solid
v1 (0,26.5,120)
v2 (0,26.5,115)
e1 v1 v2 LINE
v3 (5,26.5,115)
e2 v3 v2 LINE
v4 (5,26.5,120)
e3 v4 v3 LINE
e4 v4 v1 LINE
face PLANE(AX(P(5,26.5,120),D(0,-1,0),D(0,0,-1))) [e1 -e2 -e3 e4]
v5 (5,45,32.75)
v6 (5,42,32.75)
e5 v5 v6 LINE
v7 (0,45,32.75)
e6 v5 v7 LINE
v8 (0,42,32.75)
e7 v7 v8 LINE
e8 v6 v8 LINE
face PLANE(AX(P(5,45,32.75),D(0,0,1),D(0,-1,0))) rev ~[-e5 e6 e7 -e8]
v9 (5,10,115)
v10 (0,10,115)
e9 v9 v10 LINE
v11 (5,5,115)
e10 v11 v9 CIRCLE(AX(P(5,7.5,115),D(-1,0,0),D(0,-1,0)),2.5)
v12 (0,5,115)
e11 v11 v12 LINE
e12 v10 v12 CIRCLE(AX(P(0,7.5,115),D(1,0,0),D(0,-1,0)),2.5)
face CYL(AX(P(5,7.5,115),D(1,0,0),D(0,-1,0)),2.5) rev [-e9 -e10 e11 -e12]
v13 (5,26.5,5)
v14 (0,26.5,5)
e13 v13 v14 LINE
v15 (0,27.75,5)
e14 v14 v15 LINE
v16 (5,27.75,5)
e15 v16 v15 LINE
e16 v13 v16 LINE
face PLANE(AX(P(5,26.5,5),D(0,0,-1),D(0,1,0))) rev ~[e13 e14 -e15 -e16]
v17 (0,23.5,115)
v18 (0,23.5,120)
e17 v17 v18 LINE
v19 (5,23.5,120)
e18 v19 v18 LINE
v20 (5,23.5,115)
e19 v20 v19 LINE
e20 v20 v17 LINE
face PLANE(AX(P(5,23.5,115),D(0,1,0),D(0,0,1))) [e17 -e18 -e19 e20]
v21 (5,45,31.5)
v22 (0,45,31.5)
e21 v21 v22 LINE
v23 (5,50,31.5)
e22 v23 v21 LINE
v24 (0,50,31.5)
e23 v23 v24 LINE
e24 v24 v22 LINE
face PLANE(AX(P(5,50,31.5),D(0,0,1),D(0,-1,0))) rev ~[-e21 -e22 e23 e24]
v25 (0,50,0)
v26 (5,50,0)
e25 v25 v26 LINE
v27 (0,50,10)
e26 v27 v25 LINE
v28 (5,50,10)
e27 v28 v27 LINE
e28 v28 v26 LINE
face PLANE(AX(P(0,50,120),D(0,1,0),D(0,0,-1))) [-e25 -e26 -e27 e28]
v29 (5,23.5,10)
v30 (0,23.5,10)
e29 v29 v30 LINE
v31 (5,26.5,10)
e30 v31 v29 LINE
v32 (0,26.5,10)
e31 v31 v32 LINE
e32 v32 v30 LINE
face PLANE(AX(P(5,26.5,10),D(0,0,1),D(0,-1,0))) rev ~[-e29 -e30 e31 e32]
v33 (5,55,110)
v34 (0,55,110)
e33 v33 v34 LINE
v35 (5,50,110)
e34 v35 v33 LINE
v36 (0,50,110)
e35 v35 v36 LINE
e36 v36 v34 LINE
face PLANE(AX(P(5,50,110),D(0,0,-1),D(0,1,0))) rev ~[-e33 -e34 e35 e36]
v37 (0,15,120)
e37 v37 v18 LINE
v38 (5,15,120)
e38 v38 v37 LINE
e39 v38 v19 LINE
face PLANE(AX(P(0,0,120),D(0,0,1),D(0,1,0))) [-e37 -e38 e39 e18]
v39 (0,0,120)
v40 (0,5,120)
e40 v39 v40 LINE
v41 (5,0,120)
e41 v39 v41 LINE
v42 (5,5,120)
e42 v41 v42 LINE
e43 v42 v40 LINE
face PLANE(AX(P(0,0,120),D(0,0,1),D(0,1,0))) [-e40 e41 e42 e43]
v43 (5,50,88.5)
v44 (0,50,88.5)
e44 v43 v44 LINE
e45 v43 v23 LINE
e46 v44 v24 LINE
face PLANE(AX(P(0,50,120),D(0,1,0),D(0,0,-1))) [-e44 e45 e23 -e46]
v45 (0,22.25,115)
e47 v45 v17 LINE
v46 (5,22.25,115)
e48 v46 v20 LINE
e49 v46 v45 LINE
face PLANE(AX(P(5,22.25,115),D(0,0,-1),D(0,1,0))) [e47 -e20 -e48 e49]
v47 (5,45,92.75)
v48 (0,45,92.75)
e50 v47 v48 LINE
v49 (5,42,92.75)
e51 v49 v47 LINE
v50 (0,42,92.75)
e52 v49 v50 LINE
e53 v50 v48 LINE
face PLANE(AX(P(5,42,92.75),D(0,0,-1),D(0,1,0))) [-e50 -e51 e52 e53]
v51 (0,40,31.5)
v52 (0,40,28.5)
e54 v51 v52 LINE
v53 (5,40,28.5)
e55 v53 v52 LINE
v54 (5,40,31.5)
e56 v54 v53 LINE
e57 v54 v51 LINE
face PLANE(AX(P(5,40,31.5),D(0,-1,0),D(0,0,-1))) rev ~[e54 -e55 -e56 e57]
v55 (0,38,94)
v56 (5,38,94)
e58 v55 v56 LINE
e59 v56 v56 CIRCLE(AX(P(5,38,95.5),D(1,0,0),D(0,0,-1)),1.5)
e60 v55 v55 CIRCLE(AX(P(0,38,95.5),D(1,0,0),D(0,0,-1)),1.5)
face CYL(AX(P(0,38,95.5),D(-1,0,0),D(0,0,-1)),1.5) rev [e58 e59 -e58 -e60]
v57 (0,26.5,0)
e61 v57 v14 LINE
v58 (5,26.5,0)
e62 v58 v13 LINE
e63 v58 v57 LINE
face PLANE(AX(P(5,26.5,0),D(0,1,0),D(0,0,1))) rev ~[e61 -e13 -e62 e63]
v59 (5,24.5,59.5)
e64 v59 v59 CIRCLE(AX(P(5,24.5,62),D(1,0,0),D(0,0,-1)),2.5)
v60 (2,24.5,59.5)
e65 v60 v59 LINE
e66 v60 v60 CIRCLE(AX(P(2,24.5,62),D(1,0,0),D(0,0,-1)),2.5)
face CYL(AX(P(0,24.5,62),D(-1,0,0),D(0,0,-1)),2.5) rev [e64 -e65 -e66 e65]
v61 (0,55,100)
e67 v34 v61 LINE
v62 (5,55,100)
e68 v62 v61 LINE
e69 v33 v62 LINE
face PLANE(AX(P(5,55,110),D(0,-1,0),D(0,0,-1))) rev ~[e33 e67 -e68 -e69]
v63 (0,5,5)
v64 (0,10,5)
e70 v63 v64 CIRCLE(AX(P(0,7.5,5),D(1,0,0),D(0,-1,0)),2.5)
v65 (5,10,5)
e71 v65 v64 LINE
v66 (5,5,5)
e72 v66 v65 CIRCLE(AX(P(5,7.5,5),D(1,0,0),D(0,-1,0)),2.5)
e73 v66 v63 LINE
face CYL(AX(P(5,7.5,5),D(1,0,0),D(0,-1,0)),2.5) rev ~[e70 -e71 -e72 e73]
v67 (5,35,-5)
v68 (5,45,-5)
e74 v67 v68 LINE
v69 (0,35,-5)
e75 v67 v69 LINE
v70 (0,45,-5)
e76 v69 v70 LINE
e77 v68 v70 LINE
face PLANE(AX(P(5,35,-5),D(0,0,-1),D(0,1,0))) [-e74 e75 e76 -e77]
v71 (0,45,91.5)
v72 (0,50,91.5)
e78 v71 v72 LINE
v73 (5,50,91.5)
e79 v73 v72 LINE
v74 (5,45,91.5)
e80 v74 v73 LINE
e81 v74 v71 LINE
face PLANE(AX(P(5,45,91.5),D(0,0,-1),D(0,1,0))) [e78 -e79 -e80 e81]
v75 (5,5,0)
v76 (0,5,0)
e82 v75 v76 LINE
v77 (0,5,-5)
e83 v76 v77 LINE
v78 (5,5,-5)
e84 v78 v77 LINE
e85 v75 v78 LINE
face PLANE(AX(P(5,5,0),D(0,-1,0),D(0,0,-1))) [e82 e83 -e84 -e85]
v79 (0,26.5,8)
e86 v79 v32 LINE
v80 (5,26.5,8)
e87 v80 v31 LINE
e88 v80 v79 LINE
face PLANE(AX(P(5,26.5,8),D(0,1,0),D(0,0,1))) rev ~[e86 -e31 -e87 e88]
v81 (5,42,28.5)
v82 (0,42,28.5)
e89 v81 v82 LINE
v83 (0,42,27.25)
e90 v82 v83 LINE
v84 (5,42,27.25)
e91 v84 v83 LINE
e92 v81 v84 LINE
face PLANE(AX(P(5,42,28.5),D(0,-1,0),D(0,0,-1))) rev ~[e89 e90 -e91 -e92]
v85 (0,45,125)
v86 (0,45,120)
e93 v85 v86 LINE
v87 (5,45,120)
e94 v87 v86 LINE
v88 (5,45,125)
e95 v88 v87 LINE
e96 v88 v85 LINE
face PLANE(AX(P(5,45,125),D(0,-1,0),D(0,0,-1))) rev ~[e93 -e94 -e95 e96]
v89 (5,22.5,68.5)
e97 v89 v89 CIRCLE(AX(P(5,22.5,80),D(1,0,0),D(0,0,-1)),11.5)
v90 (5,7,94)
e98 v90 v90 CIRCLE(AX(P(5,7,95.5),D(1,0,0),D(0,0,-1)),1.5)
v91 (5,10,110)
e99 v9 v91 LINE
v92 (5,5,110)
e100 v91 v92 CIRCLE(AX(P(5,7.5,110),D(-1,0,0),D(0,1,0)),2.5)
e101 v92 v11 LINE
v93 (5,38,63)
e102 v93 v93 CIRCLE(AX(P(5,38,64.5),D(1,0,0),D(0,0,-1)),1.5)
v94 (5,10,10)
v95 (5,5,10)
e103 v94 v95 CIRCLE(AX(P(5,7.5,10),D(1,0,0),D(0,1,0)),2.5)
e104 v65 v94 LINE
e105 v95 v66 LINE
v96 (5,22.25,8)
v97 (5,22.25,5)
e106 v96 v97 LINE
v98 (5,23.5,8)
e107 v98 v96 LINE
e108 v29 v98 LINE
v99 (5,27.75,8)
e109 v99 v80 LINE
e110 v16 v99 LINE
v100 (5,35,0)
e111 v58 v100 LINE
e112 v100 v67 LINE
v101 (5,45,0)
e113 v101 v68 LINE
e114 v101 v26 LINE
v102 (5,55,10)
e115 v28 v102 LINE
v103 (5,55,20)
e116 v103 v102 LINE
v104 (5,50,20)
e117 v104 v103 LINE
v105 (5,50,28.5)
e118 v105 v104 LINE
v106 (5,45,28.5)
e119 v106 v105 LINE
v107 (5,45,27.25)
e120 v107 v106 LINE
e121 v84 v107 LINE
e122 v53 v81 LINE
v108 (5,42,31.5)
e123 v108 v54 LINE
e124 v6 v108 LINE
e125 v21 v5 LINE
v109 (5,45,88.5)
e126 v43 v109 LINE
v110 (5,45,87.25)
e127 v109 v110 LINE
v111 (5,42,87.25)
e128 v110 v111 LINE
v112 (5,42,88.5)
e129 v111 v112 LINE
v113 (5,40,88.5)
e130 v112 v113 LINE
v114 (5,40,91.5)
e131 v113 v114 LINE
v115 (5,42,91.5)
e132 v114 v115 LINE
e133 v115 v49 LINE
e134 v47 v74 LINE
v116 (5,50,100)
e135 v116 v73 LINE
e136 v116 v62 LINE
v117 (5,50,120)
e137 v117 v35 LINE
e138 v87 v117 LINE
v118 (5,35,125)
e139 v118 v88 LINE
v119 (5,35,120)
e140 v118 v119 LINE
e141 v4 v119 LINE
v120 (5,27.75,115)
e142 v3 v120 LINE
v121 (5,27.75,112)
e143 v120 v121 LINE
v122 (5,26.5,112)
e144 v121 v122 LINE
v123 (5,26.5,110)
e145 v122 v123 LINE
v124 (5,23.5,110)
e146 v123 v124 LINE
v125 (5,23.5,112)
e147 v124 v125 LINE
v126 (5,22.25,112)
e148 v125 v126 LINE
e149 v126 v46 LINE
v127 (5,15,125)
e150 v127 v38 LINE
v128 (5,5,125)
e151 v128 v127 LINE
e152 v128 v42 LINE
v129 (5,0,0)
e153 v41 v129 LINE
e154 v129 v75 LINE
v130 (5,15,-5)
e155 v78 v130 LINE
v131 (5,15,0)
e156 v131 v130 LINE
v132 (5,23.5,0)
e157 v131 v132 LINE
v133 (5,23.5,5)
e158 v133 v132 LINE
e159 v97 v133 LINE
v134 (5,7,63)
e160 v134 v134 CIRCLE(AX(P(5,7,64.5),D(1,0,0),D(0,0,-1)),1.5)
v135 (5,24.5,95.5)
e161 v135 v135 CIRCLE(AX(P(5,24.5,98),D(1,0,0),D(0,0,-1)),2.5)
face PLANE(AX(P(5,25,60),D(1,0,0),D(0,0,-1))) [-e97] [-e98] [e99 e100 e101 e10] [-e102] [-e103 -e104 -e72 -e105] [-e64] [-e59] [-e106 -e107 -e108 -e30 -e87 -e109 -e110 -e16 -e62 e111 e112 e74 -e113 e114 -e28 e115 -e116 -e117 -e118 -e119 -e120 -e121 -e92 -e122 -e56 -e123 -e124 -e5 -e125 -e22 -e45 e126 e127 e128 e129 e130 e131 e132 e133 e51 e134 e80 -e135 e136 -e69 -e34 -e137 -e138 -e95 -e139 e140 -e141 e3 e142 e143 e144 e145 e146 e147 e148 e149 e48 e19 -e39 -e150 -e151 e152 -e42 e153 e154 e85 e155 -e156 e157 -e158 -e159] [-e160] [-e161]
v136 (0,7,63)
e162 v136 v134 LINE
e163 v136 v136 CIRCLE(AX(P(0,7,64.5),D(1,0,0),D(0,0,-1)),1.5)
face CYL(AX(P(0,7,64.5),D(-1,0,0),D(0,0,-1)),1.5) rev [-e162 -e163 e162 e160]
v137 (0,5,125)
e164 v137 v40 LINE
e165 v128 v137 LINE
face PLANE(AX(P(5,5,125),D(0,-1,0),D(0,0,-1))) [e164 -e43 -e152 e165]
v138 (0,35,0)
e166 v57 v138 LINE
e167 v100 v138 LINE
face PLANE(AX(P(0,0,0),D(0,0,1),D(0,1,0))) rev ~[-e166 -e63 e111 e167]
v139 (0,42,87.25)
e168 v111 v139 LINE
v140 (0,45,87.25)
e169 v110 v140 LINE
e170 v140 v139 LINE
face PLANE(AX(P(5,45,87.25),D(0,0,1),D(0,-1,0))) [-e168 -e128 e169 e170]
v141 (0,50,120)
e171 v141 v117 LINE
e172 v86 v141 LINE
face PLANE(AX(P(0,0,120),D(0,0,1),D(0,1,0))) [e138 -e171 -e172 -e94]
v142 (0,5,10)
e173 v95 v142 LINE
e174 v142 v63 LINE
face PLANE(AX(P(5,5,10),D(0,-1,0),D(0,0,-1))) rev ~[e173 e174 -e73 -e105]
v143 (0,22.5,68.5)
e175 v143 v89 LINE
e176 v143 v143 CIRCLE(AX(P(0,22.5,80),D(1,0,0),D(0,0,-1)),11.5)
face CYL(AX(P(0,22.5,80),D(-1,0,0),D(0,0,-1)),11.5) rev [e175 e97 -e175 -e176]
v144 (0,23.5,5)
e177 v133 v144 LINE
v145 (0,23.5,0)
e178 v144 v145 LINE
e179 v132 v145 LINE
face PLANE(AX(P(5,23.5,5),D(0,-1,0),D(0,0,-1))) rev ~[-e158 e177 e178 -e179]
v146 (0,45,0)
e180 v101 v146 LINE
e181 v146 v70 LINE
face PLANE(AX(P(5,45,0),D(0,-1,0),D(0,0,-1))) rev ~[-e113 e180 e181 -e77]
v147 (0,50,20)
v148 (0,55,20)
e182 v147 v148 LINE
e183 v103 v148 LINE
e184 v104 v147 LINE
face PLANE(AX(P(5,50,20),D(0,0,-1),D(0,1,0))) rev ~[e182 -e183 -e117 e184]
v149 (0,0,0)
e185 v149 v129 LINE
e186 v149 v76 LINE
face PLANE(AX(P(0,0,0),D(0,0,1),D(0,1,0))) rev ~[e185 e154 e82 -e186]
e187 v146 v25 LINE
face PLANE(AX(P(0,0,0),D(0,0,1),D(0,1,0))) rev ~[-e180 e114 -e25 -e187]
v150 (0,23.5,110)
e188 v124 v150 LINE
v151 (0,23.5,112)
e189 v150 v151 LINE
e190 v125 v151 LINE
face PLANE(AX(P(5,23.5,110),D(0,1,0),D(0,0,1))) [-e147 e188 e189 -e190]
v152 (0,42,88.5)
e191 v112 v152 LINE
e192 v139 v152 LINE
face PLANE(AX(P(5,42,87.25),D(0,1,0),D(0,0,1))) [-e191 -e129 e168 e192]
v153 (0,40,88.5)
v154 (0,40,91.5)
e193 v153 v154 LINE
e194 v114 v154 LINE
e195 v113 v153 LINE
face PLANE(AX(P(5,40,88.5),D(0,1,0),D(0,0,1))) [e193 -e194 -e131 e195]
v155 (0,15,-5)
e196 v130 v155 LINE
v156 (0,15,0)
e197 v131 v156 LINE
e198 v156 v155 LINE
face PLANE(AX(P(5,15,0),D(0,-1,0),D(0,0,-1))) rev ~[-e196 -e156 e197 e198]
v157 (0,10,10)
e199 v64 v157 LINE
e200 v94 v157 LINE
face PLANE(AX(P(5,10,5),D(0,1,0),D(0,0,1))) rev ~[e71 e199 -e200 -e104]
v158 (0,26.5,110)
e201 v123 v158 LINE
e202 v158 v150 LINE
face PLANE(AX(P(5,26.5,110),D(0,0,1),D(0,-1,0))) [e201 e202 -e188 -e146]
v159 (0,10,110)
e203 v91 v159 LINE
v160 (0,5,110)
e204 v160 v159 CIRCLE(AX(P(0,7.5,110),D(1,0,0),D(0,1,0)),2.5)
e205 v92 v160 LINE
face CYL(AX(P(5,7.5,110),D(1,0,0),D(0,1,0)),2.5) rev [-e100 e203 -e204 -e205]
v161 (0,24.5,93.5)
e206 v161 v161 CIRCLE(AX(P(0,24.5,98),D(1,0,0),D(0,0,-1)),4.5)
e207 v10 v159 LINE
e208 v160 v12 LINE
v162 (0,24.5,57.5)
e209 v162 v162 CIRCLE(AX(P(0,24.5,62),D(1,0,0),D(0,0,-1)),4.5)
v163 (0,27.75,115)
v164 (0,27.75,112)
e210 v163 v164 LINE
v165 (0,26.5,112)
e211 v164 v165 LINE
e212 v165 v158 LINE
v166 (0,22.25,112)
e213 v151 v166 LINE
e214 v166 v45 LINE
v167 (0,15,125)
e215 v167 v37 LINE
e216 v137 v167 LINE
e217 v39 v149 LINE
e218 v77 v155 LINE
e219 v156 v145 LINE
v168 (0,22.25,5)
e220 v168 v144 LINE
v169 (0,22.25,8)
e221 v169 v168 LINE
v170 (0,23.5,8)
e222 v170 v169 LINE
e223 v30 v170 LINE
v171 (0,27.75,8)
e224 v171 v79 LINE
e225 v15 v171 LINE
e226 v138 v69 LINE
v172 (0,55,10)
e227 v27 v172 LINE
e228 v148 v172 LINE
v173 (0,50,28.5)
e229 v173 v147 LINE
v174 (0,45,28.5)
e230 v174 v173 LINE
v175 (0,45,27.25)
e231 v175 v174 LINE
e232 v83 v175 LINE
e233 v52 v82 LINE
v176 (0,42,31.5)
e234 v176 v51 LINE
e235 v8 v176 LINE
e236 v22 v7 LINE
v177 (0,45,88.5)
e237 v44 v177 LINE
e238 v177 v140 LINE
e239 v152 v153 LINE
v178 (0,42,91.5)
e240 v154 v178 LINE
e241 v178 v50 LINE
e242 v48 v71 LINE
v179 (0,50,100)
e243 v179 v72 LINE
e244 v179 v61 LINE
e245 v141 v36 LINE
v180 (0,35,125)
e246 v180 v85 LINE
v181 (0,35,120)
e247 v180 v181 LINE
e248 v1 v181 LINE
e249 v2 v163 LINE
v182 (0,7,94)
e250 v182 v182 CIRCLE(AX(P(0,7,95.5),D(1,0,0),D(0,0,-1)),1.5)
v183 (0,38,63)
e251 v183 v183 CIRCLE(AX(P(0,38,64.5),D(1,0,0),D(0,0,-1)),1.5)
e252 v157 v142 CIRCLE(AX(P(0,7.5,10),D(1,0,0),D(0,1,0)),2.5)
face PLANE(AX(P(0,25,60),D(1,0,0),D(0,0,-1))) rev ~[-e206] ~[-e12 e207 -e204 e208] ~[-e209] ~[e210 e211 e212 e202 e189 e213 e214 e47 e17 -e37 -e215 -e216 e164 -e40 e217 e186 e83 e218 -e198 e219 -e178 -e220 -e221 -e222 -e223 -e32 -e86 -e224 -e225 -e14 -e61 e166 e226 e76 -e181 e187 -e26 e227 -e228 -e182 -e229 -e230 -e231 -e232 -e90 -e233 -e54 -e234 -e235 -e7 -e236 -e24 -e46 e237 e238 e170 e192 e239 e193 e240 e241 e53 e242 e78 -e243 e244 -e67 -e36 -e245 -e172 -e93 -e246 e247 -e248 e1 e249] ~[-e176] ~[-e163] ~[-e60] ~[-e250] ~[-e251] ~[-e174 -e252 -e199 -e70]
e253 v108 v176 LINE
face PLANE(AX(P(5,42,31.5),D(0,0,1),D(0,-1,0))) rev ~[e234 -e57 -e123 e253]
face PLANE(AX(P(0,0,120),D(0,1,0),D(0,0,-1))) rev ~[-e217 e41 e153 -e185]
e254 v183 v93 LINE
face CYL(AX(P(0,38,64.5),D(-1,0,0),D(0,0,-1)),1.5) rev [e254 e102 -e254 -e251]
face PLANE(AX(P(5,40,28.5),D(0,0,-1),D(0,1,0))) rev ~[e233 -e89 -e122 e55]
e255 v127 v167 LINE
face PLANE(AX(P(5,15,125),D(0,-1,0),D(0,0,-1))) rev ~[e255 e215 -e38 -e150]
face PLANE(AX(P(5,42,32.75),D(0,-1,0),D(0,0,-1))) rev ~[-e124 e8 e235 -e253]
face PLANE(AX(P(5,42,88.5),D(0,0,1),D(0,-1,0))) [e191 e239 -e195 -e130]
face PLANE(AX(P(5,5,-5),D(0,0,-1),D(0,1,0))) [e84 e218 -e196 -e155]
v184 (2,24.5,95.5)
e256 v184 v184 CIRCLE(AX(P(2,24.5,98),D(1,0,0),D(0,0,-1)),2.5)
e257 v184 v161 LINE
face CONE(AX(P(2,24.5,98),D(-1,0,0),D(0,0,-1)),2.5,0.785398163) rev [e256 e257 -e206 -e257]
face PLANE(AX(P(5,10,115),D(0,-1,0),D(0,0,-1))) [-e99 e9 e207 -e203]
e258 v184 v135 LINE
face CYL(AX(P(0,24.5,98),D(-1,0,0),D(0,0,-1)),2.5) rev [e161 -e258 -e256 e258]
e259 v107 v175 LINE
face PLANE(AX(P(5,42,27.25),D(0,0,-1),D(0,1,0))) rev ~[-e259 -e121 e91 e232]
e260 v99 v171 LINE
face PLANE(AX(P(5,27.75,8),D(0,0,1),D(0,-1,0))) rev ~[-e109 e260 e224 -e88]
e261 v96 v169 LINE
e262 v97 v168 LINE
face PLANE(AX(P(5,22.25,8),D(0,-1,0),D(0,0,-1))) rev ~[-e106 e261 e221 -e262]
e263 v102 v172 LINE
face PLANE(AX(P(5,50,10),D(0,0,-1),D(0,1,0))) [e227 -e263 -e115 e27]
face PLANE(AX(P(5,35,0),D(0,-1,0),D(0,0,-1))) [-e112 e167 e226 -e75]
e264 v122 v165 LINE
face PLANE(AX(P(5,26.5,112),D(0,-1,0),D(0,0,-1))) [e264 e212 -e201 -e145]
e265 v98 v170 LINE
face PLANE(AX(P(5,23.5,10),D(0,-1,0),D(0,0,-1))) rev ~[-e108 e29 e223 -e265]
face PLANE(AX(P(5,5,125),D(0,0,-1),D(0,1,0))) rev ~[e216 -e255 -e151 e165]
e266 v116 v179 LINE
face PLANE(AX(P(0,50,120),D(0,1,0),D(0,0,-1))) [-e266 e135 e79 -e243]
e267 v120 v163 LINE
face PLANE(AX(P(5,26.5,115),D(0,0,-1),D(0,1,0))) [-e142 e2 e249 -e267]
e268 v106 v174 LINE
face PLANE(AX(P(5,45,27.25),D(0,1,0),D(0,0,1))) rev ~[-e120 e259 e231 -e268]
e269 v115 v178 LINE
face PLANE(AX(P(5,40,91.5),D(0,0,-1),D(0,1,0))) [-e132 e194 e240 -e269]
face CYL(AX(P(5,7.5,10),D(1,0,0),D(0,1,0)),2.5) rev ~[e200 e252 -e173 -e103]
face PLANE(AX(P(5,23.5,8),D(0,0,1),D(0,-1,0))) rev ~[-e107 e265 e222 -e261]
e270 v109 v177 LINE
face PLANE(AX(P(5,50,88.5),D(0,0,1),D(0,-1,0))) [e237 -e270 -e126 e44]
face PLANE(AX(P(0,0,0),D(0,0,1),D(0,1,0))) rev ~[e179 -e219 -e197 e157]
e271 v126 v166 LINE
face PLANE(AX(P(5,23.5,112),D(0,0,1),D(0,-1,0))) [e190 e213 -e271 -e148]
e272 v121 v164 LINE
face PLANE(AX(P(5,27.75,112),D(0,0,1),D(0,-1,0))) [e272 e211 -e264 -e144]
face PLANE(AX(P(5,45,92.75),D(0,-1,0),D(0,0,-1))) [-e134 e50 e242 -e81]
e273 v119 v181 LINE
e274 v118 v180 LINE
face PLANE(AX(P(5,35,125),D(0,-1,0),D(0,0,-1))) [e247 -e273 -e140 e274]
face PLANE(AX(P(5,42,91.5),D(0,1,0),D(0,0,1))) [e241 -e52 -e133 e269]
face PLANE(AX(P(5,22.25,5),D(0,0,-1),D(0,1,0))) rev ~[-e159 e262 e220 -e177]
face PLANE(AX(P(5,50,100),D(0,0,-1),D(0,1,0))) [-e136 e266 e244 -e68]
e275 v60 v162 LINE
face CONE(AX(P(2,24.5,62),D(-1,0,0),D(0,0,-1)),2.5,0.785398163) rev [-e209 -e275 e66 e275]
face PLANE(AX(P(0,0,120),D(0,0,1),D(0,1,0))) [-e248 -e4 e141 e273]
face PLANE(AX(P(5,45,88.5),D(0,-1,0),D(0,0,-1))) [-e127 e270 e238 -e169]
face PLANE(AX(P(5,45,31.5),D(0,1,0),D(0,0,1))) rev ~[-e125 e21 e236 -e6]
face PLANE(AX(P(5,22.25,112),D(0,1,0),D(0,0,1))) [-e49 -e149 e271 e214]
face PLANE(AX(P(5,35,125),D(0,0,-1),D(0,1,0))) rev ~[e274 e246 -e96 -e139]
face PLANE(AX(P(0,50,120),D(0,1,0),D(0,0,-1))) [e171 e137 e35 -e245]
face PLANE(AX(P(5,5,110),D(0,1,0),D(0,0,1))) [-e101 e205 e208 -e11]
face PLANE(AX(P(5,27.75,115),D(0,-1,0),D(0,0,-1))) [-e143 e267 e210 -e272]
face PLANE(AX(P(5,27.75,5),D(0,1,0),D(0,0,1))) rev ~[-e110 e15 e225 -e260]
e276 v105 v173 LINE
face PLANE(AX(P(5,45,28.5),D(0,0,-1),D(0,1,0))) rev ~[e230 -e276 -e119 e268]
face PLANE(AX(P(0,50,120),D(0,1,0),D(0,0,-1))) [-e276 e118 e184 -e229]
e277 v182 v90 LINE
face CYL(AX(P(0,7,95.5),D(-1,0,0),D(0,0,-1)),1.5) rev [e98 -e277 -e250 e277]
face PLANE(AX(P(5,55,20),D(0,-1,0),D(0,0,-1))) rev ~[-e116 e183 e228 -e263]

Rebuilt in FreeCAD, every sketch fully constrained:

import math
import FreeCAD as App
import Part
import Sketcher
from FreeCAD import Vector
Q = App.Units.Quantity


def edges_at(feature, points):
    """Names of the edges that pass closest to the given points."""
    edges = feature.Shape.Edges
    near = lambda p: min(range(len(edges)), key=lambda i: edges[i].distToShape(Part.Vertex(*p))[0])
    return sorted({f"Edge{near(p) + 1}" for p in points})

doc = App.newDocument("Part")
params = doc.addObject("Spreadsheet::Sheet", "Params")
for row, (alias, value) in enumerate([
    ("sketch1_diameter", "3 mm"),
    ("sketch1_diameter2", "5 mm"),
    ("sketch1_diameter3", "23 mm"),
    ("sketch1_width", "50 mm"),
    ("sketch1_height", "120 mm"),
    ("pad1_length", "5 mm"),
    ("chamfer_size", "2 mm"),
    ("sketch2_width", "10 mm"),
    ("sketch2_width2", "5 mm"),
    ("pad2_length", "5 mm"),
    ("sketch3_radius", "2.5 mm"),
    ("sketch3_width", "3 mm"),
    ("sketch3_width2", "5 mm"),
    ("sketch3_width3", "1.25 mm"),
], start=1):
    params.set(f"A{row}", alias)
    params.set(f"B{row}", "=" + value)
    params.setAlias(f"B{row}", alias)

body = doc.addObject("PartDesign::Body", "Body")

# Sketch on YZ plane
sketch1 = doc.addObject("Sketcher::SketchObject", "Sketch")
body.addObject(sketch1)
sketch1.AttachmentSupport = (doc.YZ_Plane, [""])
sketch1.MapMode = "FlatFace"
sketch1.addGeometry(Part.LineSegment(Vector(50, 120, 0), Vector(0, 120, 0)), False)
sketch1.addGeometry(Part.LineSegment(Vector(0, 120, 0), Vector(0, 0, 0)), False)
sketch1.addGeometry(Part.LineSegment(Vector(0, 0, 0), Vector(50, 0, 0)), False)
sketch1.addGeometry(Part.LineSegment(Vector(50, 0, 0), Vector(50, 120, 0)), False)
sketch1.addGeometry(Part.Circle(Vector(7, 95.5, 0), Vector(0, 0, 1), 1.5), False)
sketch1.addGeometry(Part.Circle(Vector(7, 64.5, 0), Vector(0, 0, 1), 1.5), False)
sketch1.addGeometry(Part.Circle(Vector(24.5, 98, 0), Vector(0, 0, 1), 2.5), False)
sketch1.addGeometry(Part.Circle(Vector(38, 95.5, 0), Vector(0, 0, 1), 1.5), False)
sketch1.addGeometry(Part.Circle(Vector(22.5, 80, 0), Vector(0, 0, 1), 11.5), False)
sketch1.addGeometry(Part.Circle(Vector(24.5, 62, 0), Vector(0, 0, 1), 2.5), False)
sketch1.addGeometry(Part.Circle(Vector(38, 64.5, 0), Vector(0, 0, 1), 1.5), False)
sketch1.addConstraint(Sketcher.Constraint("Coincident", 0, 2, 1, 1))
sketch1.addConstraint(Sketcher.Constraint("Coincident", 1, 2, 2, 1))
sketch1.addConstraint(Sketcher.Constraint("Coincident", 2, 2, 3, 1))
sketch1.addConstraint(Sketcher.Constraint("Coincident", 3, 2, 0, 1))
sketch1.addConstraint(Sketcher.Constraint("Horizontal", 0))
sketch1.addConstraint(Sketcher.Constraint("Vertical", 1))
sketch1.addConstraint(Sketcher.Constraint("Horizontal", 2))
sketch1.addConstraint(Sketcher.Constraint("Vertical", 3))
sketch1.addConstraint(Sketcher.Constraint("Coincident", 1, 2, -1, 1))
sketch1.addConstraint(Sketcher.Constraint("Equal", 4, 5))
sketch1.addConstraint(Sketcher.Constraint("Equal", 5, 7))
sketch1.addConstraint(Sketcher.Constraint("Equal", 6, 9))
sketch1.addConstraint(Sketcher.Constraint("Equal", 7, 10))
sketch1.addConstraint(Sketcher.Constraint("Horizontal", 4, 3, 7, 3))
sketch1.addConstraint(Sketcher.Constraint("Horizontal", 5, 3, 10, 3))
sketch1.addConstraint(Sketcher.Constraint("Vertical", 4, 3, 5, 3))
sketch1.addConstraint(Sketcher.Constraint("Vertical", 6, 3, 9, 3))
sketch1.addConstraint(Sketcher.Constraint("Vertical", 7, 3, 10, 3))
sketch1.addConstraint(Sketcher.Constraint("Diameter", 4, Q("3 mm")))
sketch1.addConstraint(Sketcher.Constraint("Diameter", 6, Q("5 mm")))
sketch1.addConstraint(Sketcher.Constraint("Diameter", 8, Q("23 mm")))
sketch1.addConstraint(Sketcher.Constraint("DistanceX", 0, 2, 0, 1, Q("50 mm")))
sketch1.addConstraint(Sketcher.Constraint("DistanceY", 1, 2, 1, 1, Q("120 mm")))
sketch1.addConstraint(Sketcher.Constraint("DistanceX", -1, 1, 4, 3, Q("7 mm")))
sketch1.addConstraint(Sketcher.Constraint("DistanceY", -1, 1, 6, 3, Q("98 mm")))
sketch1.addConstraint(Sketcher.Constraint("DistanceX", -1, 1, 7, 3, Q("38 mm")))
sketch1.addConstraint(Sketcher.Constraint("DistanceY", -1, 1, 8, 3, Q("80 mm")))
sketch1.addConstraint(Sketcher.Constraint("DistanceY", -1, 1, 9, 3, Q("62 mm")))
sketch1.addConstraint(Sketcher.Constraint("DistanceY", 5, 3, 4, 3, Q("31 mm")))
sketch1.addConstraint(Sketcher.Constraint("DistanceX", 8, 3, 6, 3, Q("2 mm")))
sketch1.addConstraint(Sketcher.Constraint("DistanceY", -1, 1, 4, 3, Q("95.5 mm")))
sketch1.addConstraint(Sketcher.Constraint("DistanceX", -1, 1, 6, 3, Q("24.5 mm")))
sketch1.setExpression("Constraints[18]", "Params.sketch1_diameter")
sketch1.setExpression("Constraints[19]", "Params.sketch1_diameter2")
sketch1.setExpression("Constraints[20]", "Params.sketch1_diameter3")
sketch1.setExpression("Constraints[21]", "Params.sketch1_width")
sketch1.setExpression("Constraints[22]", "Params.sketch1_height")
pad1 = doc.addObject("PartDesign::Pad", "Pad")
body.addObject(pad1)
pad1.Profile = sketch1
pad1.setExpression("Length", "Params.pad1_length")
doc.recompute()

chamfer = doc.addObject("PartDesign::Chamfer", "Chamfer")
body.addObject(chamfer)
chamfer.Base = (pad1, edges_at(pad1, [(0, 24.5, 100.5), (0, 24.5, 64.5)]))
chamfer.setExpression("Size", "Params.chamfer_size")

# Sketch on YZ plane
sketch2 = doc.addObject("Sketcher::SketchObject", "Sketch001")
body.addObject(sketch2)
sketch2.AttachmentSupport = (doc.YZ_Plane, [""])
sketch2.MapMode = "FlatFace"
sketch2.AttachmentOffset = App.Placement(Vector(0, 0, 5), App.Rotation())
sketch2.addGeometry(Part.LineSegment(Vector(15, 125, 0), Vector(5, 125, 0)), False)
sketch2.addGeometry(Part.LineSegment(Vector(5, 125, 0), Vector(5, 120, 0)), False)
sketch2.addGeometry(Part.LineSegment(Vector(5, 120, 0), Vector(15, 120, 0)), False)
sketch2.addGeometry(Part.LineSegment(Vector(15, 120, 0), Vector(15, 125, 0)), False)
sketch2.addGeometry(Part.LineSegment(Vector(45, 125, 0), Vector(35, 125, 0)), False)
sketch2.addGeometry(Part.LineSegment(Vector(35, 125, 0), Vector(35, 120, 0)), False)
sketch2.addGeometry(Part.LineSegment(Vector(35, 120, 0), Vector(45, 120, 0)), False)
sketch2.addGeometry(Part.LineSegment(Vector(45, 120, 0), Vector(45, 125, 0)), False)
sketch2.addGeometry(Part.LineSegment(Vector(55, 110, 0), Vector(50, 110, 0)), False)
sketch2.addGeometry(Part.LineSegment(Vector(50, 110, 0), Vector(50, 100, 0)), False)
sketch2.addGeometry(Part.LineSegment(Vector(50, 100, 0), Vector(55, 100, 0)), False)
sketch2.addGeometry(Part.LineSegment(Vector(55, 100, 0), Vector(55, 110, 0)), False)
sketch2.addGeometry(Part.LineSegment(Vector(55, 20, 0), Vector(50, 20, 0)), False)
sketch2.addGeometry(Part.LineSegment(Vector(50, 20, 0), Vector(50, 10, 0)), False)
sketch2.addGeometry(Part.LineSegment(Vector(50, 10, 0), Vector(55, 10, 0)), False)
sketch2.addGeometry(Part.LineSegment(Vector(55, 10, 0), Vector(55, 20, 0)), False)
sketch2.addGeometry(Part.LineSegment(Vector(45, 0, 0), Vector(35, 0, 0)), False)
sketch2.addGeometry(Part.LineSegment(Vector(35, 0, 0), Vector(35, -5, 0)), False)
sketch2.addGeometry(Part.LineSegment(Vector(35, -5, 0), Vector(45, -5, 0)), False)
sketch2.addGeometry(Part.LineSegment(Vector(45, -5, 0), Vector(45, 0, 0)), False)
sketch2.addGeometry(Part.LineSegment(Vector(15, 0, 0), Vector(5, 0, 0)), False)
sketch2.addGeometry(Part.LineSegment(Vector(5, 0, 0), Vector(5, -5, 0)), False)
sketch2.addGeometry(Part.LineSegment(Vector(5, -5, 0), Vector(15, -5, 0)), False)
sketch2.addGeometry(Part.LineSegment(Vector(15, -5, 0), Vector(15, 0, 0)), False)
sketch2.addConstraint(Sketcher.Constraint("Coincident", 0, 2, 1, 1))
sketch2.addConstraint(Sketcher.Constraint("Coincident", 1, 2, 2, 1))
sketch2.addConstraint(Sketcher.Constraint("Coincident", 2, 2, 3, 1))
sketch2.addConstraint(Sketcher.Constraint("Coincident", 3, 2, 0, 1))
sketch2.addConstraint(Sketcher.Constraint("Coincident", 4, 2, 5, 1))
sketch2.addConstraint(Sketcher.Constraint("Coincident", 5, 2, 6, 1))
sketch2.addConstraint(Sketcher.Constraint("Coincident", 6, 2, 7, 1))
sketch2.addConstraint(Sketcher.Constraint("Coincident", 7, 2, 4, 1))
sketch2.addConstraint(Sketcher.Constraint("Coincident", 8, 2, 9, 1))
sketch2.addConstraint(Sketcher.Constraint("Coincident", 9, 2, 10, 1))
sketch2.addConstraint(Sketcher.Constraint("Coincident", 10, 2, 11, 1))
sketch2.addConstraint(Sketcher.Constraint("Coincident", 11, 2, 8, 1))
sketch2.addConstraint(Sketcher.Constraint("Coincident", 12, 2, 13, 1))
sketch2.addConstraint(Sketcher.Constraint("Coincident", 13, 2, 14, 1))
sketch2.addConstraint(Sketcher.Constraint("Coincident", 14, 2, 15, 1))
sketch2.addConstraint(Sketcher.Constraint("Coincident", 15, 2, 12, 1))
sketch2.addConstraint(Sketcher.Constraint("Coincident", 16, 2, 17, 1))
sketch2.addConstraint(Sketcher.Constraint("Coincident", 17, 2, 18, 1))
sketch2.addConstraint(Sketcher.Constraint("Coincident", 18, 2, 19, 1))
sketch2.addConstraint(Sketcher.Constraint("Coincident", 19, 2, 16, 1))
sketch2.addConstraint(Sketcher.Constraint("Coincident", 20, 2, 21, 1))
sketch2.addConstraint(Sketcher.Constraint("Coincident", 21, 2, 22, 1))
sketch2.addConstraint(Sketcher.Constraint("Coincident", 22, 2, 23, 1))
sketch2.addConstraint(Sketcher.Constraint("Coincident", 23, 2, 20, 1))
sketch2.addConstraint(Sketcher.Constraint("Horizontal", 0))
sketch2.addConstraint(Sketcher.Constraint("Vertical", 1))
sketch2.addConstraint(Sketcher.Constraint("Horizontal", 2))
sketch2.addConstraint(Sketcher.Constraint("Vertical", 3))
sketch2.addConstraint(Sketcher.Constraint("Horizontal", 4))
sketch2.addConstraint(Sketcher.Constraint("Vertical", 5))
sketch2.addConstraint(Sketcher.Constraint("Horizontal", 6))
sketch2.addConstraint(Sketcher.Constraint("Vertical", 7))
sketch2.addConstraint(Sketcher.Constraint("Horizontal", 8))
sketch2.addConstraint(Sketcher.Constraint("Vertical", 9))
sketch2.addConstraint(Sketcher.Constraint("Horizontal", 10))
sketch2.addConstraint(Sketcher.Constraint("Vertical", 11))
sketch2.addConstraint(Sketcher.Constraint("Horizontal", 12))
sketch2.addConstraint(Sketcher.Constraint("Vertical", 13))
sketch2.addConstraint(Sketcher.Constraint("Horizontal", 14))
sketch2.addConstraint(Sketcher.Constraint("Vertical", 15))
sketch2.addConstraint(Sketcher.Constraint("Horizontal", 16))
sketch2.addConstraint(Sketcher.Constraint("Vertical", 17))
sketch2.addConstraint(Sketcher.Constraint("Horizontal", 18))
sketch2.addConstraint(Sketcher.Constraint("Vertical", 19))
sketch2.addConstraint(Sketcher.Constraint("Horizontal", 20))
sketch2.addConstraint(Sketcher.Constraint("Vertical", 21))
sketch2.addConstraint(Sketcher.Constraint("Horizontal", 22))
sketch2.addConstraint(Sketcher.Constraint("Vertical", 23))
sketch2.addConstraint(Sketcher.Constraint("PointOnObject", 16, 2, -1))
sketch2.addConstraint(Sketcher.Constraint("PointOnObject", 20, 2, -1))
sketch2.addConstraint(Sketcher.Constraint("Horizontal", 3, 2, 4, 2))
sketch2.addConstraint(Sketcher.Constraint("Horizontal", 2, 2, 5, 2))
sketch2.addConstraint(Sketcher.Constraint("Horizontal", 18, 2, 21, 2))
sketch2.addConstraint(Sketcher.Constraint("Vertical", 9, 2, 12, 2))
sketch2.addConstraint(Sketcher.Constraint("Vertical", 11, 2, 14, 2))
sketch2.addConstraint(Sketcher.Constraint("Vertical", 5, 2, 16, 2))
sketch2.addConstraint(Sketcher.Constraint("Vertical", 7, 2, 18, 2))
sketch2.addConstraint(Sketcher.Constraint("Vertical", 1, 2, 20, 2))
sketch2.addConstraint(Sketcher.Constraint("Vertical", 3, 2, 22, 2))
sketch2.addConstraint(Sketcher.Constraint("Equal", 2, 4))
sketch2.addConstraint(Sketcher.Constraint("Equal", 14, 1))
sketch2.addConstraint(Sketcher.Constraint("Equal", 22, 9))
sketch2.addConstraint(Sketcher.Constraint("Equal", 11, 13))
sketch2.addConstraint(Sketcher.Constraint("Equal", 7, 17))
sketch2.addConstraint(Sketcher.Constraint("DistanceX", 0, 2, 0, 1, Q("10 mm")))
sketch2.addConstraint(Sketcher.Constraint("DistanceX", 8, 2, 8, 1, Q("5 mm")))
sketch2.addConstraint(Sketcher.Constraint("DistanceX", -1, 1, 0, 2, Q("5 mm")))
sketch2.addConstraint(Sketcher.Constraint("DistanceY", -1, 1, 0, 2, Q("125 mm")))
sketch2.addConstraint(Sketcher.Constraint("DistanceX", -1, 1, 4, 2, Q("35 mm")))
sketch2.addConstraint(Sketcher.Constraint("DistanceX", -1, 1, 8, 2, Q("50 mm")))
sketch2.addConstraint(Sketcher.Constraint("DistanceY", -1, 1, 8, 2, Q("110 mm")))
sketch2.addConstraint(Sketcher.Constraint("DistanceY", -1, 1, 12, 2, Q("20 mm")))
sketch2.setExpression("Constraints[64]", "Params.sketch2_width")
sketch2.setExpression("Constraints[65]", "Params.sketch2_width2")
pad2 = doc.addObject("PartDesign::Pad", "Pad001")
body.addObject(pad2)
pad2.Profile = sketch2
pad2.setExpression("Length", "Params.pad2_length")
pad2.Reversed = True

# Sketch on YZ plane
sketch3 = doc.addObject("Sketcher::SketchObject", "Sketch002")
body.addObject(sketch3)
sketch3.AttachmentSupport = (doc.YZ_Plane, [""])
sketch3.MapMode = "FlatFace"
sketch3.AttachmentOffset = App.Placement(Vector(0, 0, 5), App.Rotation())
sketch3.addGeometry(Part.LineSegment(Vector(26.5, 0, 0), Vector(26.5, 5, 0)), False)
sketch3.addGeometry(Part.LineSegment(Vector(26.5, 5, 0), Vector(27.8, 5, 0)), False)
sketch3.addGeometry(Part.LineSegment(Vector(27.8, 5, 0), Vector(27.8, 8, 0)), False)
sketch3.addGeometry(Part.LineSegment(Vector(27.8, 8, 0), Vector(26.5, 8, 0)), False)
sketch3.addGeometry(Part.LineSegment(Vector(26.5, 8, 0), Vector(26.5, 10, 0)), False)
sketch3.addGeometry(Part.LineSegment(Vector(26.5, 10, 0), Vector(23.5, 10, 0)), False)
sketch3.addGeometry(Part.LineSegment(Vector(23.5, 10, 0), Vector(23.5, 8, 0)), False)
sketch3.addGeometry(Part.LineSegment(Vector(23.5, 8, 0), Vector(22.2, 8, 0)), False)
sketch3.addGeometry(Part.LineSegment(Vector(22.2, 8, 0), Vector(22.2, 5, 0)), False)
sketch3.addGeometry(Part.LineSegment(Vector(22.2, 5, 0), Vector(23.5, 5, 0)), False)
sketch3.addGeometry(Part.LineSegment(Vector(23.5, 5, 0), Vector(23.5, 0, 0)), False)
sketch3.addGeometry(Part.LineSegment(Vector(23.5, 0, 0), Vector(26.5, 0, 0)), False)
sketch3.addGeometry(Part.LineSegment(Vector(26.5, 120, 0), Vector(23.5, 120, 0)), False)
sketch3.addGeometry(Part.LineSegment(Vector(23.5, 120, 0), Vector(23.5, 115, 0)), False)
sketch3.addGeometry(Part.LineSegment(Vector(23.5, 115, 0), Vector(22.2, 115, 0)), False)
sketch3.addGeometry(Part.LineSegment(Vector(22.2, 115, 0), Vector(22.2, 112, 0)), False)
sketch3.addGeometry(Part.LineSegment(Vector(22.2, 112, 0), Vector(23.5, 112, 0)), False)
sketch3.addGeometry(Part.LineSegment(Vector(23.5, 112, 0), Vector(23.5, 110, 0)), False)
sketch3.addGeometry(Part.LineSegment(Vector(23.5, 110, 0), Vector(26.5, 110, 0)), False)
sketch3.addGeometry(Part.LineSegment(Vector(26.5, 110, 0), Vector(26.5, 112, 0)), False)
sketch3.addGeometry(Part.LineSegment(Vector(26.5, 112, 0), Vector(27.8, 112, 0)), False)
sketch3.addGeometry(Part.LineSegment(Vector(27.8, 112, 0), Vector(27.8, 115, 0)), False)
sketch3.addGeometry(Part.LineSegment(Vector(27.8, 115, 0), Vector(26.5, 115, 0)), False)
sketch3.addGeometry(Part.LineSegment(Vector(26.5, 115, 0), Vector(26.5, 120, 0)), False)
sketch3.addGeometry(Part.LineSegment(Vector(50, 31.5, 0), Vector(45, 31.5, 0)), False)
sketch3.addGeometry(Part.LineSegment(Vector(45, 31.5, 0), Vector(45, 32.8, 0)), False)
sketch3.addGeometry(Part.LineSegment(Vector(45, 32.8, 0), Vector(42, 32.8, 0)), False)
sketch3.addGeometry(Part.LineSegment(Vector(42, 32.8, 0), Vector(42, 31.5, 0)), False)
sketch3.addGeometry(Part.LineSegment(Vector(42, 31.5, 0), Vector(40, 31.5, 0)), False)
sketch3.addGeometry(Part.LineSegment(Vector(40, 31.5, 0), Vector(40, 28.5, 0)), False)
sketch3.addGeometry(Part.LineSegment(Vector(40, 28.5, 0), Vector(42, 28.5, 0)), False)
sketch3.addGeometry(Part.LineSegment(Vector(42, 28.5, 0), Vector(42, 27.2, 0)), False)
sketch3.addGeometry(Part.LineSegment(Vector(42, 27.2, 0), Vector(45, 27.2, 0)), False)
sketch3.addGeometry(Part.LineSegment(Vector(45, 27.2, 0), Vector(45, 28.5, 0)), False)
sketch3.addGeometry(Part.LineSegment(Vector(45, 28.5, 0), Vector(50, 28.5, 0)), False)
sketch3.addGeometry(Part.LineSegment(Vector(50, 28.5, 0), Vector(50, 31.5, 0)), False)
sketch3.addGeometry(Part.LineSegment(Vector(50, 88.5, 0), Vector(50, 91.5, 0)), False)
sketch3.addGeometry(Part.LineSegment(Vector(50, 91.5, 0), Vector(45, 91.5, 0)), False)
sketch3.addGeometry(Part.LineSegment(Vector(45, 91.5, 0), Vector(45, 92.8, 0)), False)
sketch3.addGeometry(Part.LineSegment(Vector(45, 92.8, 0), Vector(42, 92.8, 0)), False)
sketch3.addGeometry(Part.LineSegment(Vector(42, 92.8, 0), Vector(42, 91.5, 0)), False)
sketch3.addGeometry(Part.LineSegment(Vector(42, 91.5, 0), Vector(40, 91.5, 0)), False)
sketch3.addGeometry(Part.LineSegment(Vector(40, 91.5, 0), Vector(40, 88.5, 0)), False)
sketch3.addGeometry(Part.LineSegment(Vector(40, 88.5, 0), Vector(42, 88.5, 0)), False)
sketch3.addGeometry(Part.LineSegment(Vector(42, 88.5, 0), Vector(42, 87.2, 0)), False)
sketch3.addGeometry(Part.LineSegment(Vector(42, 87.2, 0), Vector(45, 87.2, 0)), False)
sketch3.addGeometry(Part.LineSegment(Vector(45, 87.2, 0), Vector(45, 88.5, 0)), False)
sketch3.addGeometry(Part.LineSegment(Vector(45, 88.5, 0), Vector(50, 88.5, 0)), False)
sketch3.addGeometry(Part.LineSegment(Vector(10, 110, 0), Vector(10, 115, 0)), False)
sketch3.addGeometry(Part.ArcOfCircle(Part.Circle(Vector(7.5, 115, 0), Vector(0, 0, 1), 2.5), math.radians(0), math.radians(180)), False)
sketch3.addGeometry(Part.LineSegment(Vector(5, 115, 0), Vector(5, 110, 0)), False)
sketch3.addGeometry(Part.ArcOfCircle(Part.Circle(Vector(7.5, 110, 0), Vector(0, 0, 1), 2.5), math.radians(180), math.radians(360)), False)
sketch3.addGeometry(Part.LineSegment(Vector(10, 5, 0), Vector(10, 10, 0)), False)
sketch3.addGeometry(Part.ArcOfCircle(Part.Circle(Vector(7.5, 10, 0), Vector(0, 0, 1), 2.5), math.radians(0), math.radians(180)), False)
sketch3.addGeometry(Part.LineSegment(Vector(5, 10, 0), Vector(5, 5, 0)), False)
sketch3.addGeometry(Part.ArcOfCircle(Part.Circle(Vector(7.5, 5, 0), Vector(0, 0, 1), 2.5), math.radians(180), math.radians(360)), False)
sketch3.addConstraint(Sketcher.Constraint("Coincident", 0, 2, 1, 1))
sketch3.addConstraint(Sketcher.Constraint("Coincident", 1, 2, 2, 1))
sketch3.addConstraint(Sketcher.Constraint("Coincident", 2, 2, 3, 1))
sketch3.addConstraint(Sketcher.Constraint("Coincident", 3, 2, 4, 1))
sketch3.addConstraint(Sketcher.Constraint("Coincident", 4, 2, 5, 1))
sketch3.addConstraint(Sketcher.Constraint("Coincident", 5, 2, 6, 1))
sketch3.addConstraint(Sketcher.Constraint("Coincident", 6, 2, 7, 1))
sketch3.addConstraint(Sketcher.Constraint("Coincident", 7, 2, 8, 1))
sketch3.addConstraint(Sketcher.Constraint("Coincident", 8, 2, 9, 1))
sketch3.addConstraint(Sketcher.Constraint("Coincident", 9, 2, 10, 1))
sketch3.addConstraint(Sketcher.Constraint("Coincident", 10, 2, 11, 1))
sketch3.addConstraint(Sketcher.Constraint("Coincident", 11, 2, 0, 1))
sketch3.addConstraint(Sketcher.Constraint("Coincident", 12, 2, 13, 1))
sketch3.addConstraint(Sketcher.Constraint("Coincident", 13, 2, 14, 1))
sketch3.addConstraint(Sketcher.Constraint("Coincident", 14, 2, 15, 1))
sketch3.addConstraint(Sketcher.Constraint("Coincident", 15, 2, 16, 1))
sketch3.addConstraint(Sketcher.Constraint("Coincident", 16, 2, 17, 1))
sketch3.addConstraint(Sketcher.Constraint("Coincident", 17, 2, 18, 1))
sketch3.addConstraint(Sketcher.Constraint("Coincident", 18, 2, 19, 1))
sketch3.addConstraint(Sketcher.Constraint("Coincident", 19, 2, 20, 1))
sketch3.addConstraint(Sketcher.Constraint("Coincident", 20, 2, 21, 1))
sketch3.addConstraint(Sketcher.Constraint("Coincident", 21, 2, 22, 1))
sketch3.addConstraint(Sketcher.Constraint("Coincident", 22, 2, 23, 1))
sketch3.addConstraint(Sketcher.Constraint("Coincident", 23, 2, 12, 1))
sketch3.addConstraint(Sketcher.Constraint("Coincident", 24, 2, 25, 1))
sketch3.addConstraint(Sketcher.Constraint("Coincident", 25, 2, 26, 1))
sketch3.addConstraint(Sketcher.Constraint("Coincident", 26, 2, 27, 1))
sketch3.addConstraint(Sketcher.Constraint("Coincident", 27, 2, 28, 1))
sketch3.addConstraint(Sketcher.Constraint("Coincident", 28, 2, 29, 1))
sketch3.addConstraint(Sketcher.Constraint("Coincident", 29, 2, 30, 1))
sketch3.addConstraint(Sketcher.Constraint("Coincident", 30, 2, 31, 1))
sketch3.addConstraint(Sketcher.Constraint("Coincident", 31, 2, 32, 1))
sketch3.addConstraint(Sketcher.Constraint("Coincident", 32, 2, 33, 1))
sketch3.addConstraint(Sketcher.Constraint("Coincident", 33, 2, 34, 1))
sketch3.addConstraint(Sketcher.Constraint("Coincident", 34, 2, 35, 1))
sketch3.addConstraint(Sketcher.Constraint("Coincident", 35, 2, 24, 1))
sketch3.addConstraint(Sketcher.Constraint("Coincident", 36, 2, 37, 1))
sketch3.addConstraint(Sketcher.Constraint("Coincident", 37, 2, 38, 1))
sketch3.addConstraint(Sketcher.Constraint("Coincident", 38, 2, 39, 1))
sketch3.addConstraint(Sketcher.Constraint("Coincident", 39, 2, 40, 1))
sketch3.addConstraint(Sketcher.Constraint("Coincident", 40, 2, 41, 1))
sketch3.addConstraint(Sketcher.Constraint("Coincident", 41, 2, 42, 1))
sketch3.addConstraint(Sketcher.Constraint("Coincident", 42, 2, 43, 1))
sketch3.addConstraint(Sketcher.Constraint("Coincident", 43, 2, 44, 1))
sketch3.addConstraint(Sketcher.Constraint("Coincident", 44, 2, 45, 1))
sketch3.addConstraint(Sketcher.Constraint("Coincident", 45, 2, 46, 1))
sketch3.addConstraint(Sketcher.Constraint("Coincident", 46, 2, 47, 1))
sketch3.addConstraint(Sketcher.Constraint("Coincident", 47, 2, 36, 1))
sketch3.addConstraint(Sketcher.Constraint("Tangent", 48, 2, 49, 1))
sketch3.addConstraint(Sketcher.Constraint("Tangent", 49, 2, 50, 1))
sketch3.addConstraint(Sketcher.Constraint("Tangent", 50, 2, 51, 1))
sketch3.addConstraint(Sketcher.Constraint("Tangent", 51, 2, 48, 1))
sketch3.addConstraint(Sketcher.Constraint("Tangent", 52, 2, 53, 1))
sketch3.addConstraint(Sketcher.Constraint("Tangent", 53, 2, 54, 1))
sketch3.addConstraint(Sketcher.Constraint("Tangent", 54, 2, 55, 1))
sketch3.addConstraint(Sketcher.Constraint("Tangent", 55, 2, 52, 1))
sketch3.addConstraint(Sketcher.Constraint("Vertical", 0))
sketch3.addConstraint(Sketcher.Constraint("Horizontal", 1))
sketch3.addConstraint(Sketcher.Constraint("Vertical", 2))
sketch3.addConstraint(Sketcher.Constraint("Horizontal", 3))
sketch3.addConstraint(Sketcher.Constraint("Vertical", 4))
sketch3.addConstraint(Sketcher.Constraint("Horizontal", 5))
sketch3.addConstraint(Sketcher.Constraint("Vertical", 6))
sketch3.addConstraint(Sketcher.Constraint("Horizontal", 7))
sketch3.addConstraint(Sketcher.Constraint("Vertical", 8))
sketch3.addConstraint(Sketcher.Constraint("Horizontal", 9))
sketch3.addConstraint(Sketcher.Constraint("Vertical", 10))
sketch3.addConstraint(Sketcher.Constraint("Horizontal", 11))
sketch3.addConstraint(Sketcher.Constraint("Horizontal", 12))
sketch3.addConstraint(Sketcher.Constraint("Vertical", 13))
sketch3.addConstraint(Sketcher.Constraint("Horizontal", 14))
sketch3.addConstraint(Sketcher.Constraint("Vertical", 15))
sketch3.addConstraint(Sketcher.Constraint("Horizontal", 16))
sketch3.addConstraint(Sketcher.Constraint("Vertical", 17))
sketch3.addConstraint(Sketcher.Constraint("Horizontal", 18))
sketch3.addConstraint(Sketcher.Constraint("Vertical", 19))
sketch3.addConstraint(Sketcher.Constraint("Horizontal", 20))
sketch3.addConstraint(Sketcher.Constraint("Vertical", 21))
sketch3.addConstraint(Sketcher.Constraint("Horizontal", 22))
sketch3.addConstraint(Sketcher.Constraint("Vertical", 23))
sketch3.addConstraint(Sketcher.Constraint("Horizontal", 24))
sketch3.addConstraint(Sketcher.Constraint("Vertical", 25))
sketch3.addConstraint(Sketcher.Constraint("Horizontal", 26))
sketch3.addConstraint(Sketcher.Constraint("Vertical", 27))
sketch3.addConstraint(Sketcher.Constraint("Horizontal", 28))
sketch3.addConstraint(Sketcher.Constraint("Vertical", 29))
sketch3.addConstraint(Sketcher.Constraint("Horizontal", 30))
sketch3.addConstraint(Sketcher.Constraint("Vertical", 31))
sketch3.addConstraint(Sketcher.Constraint("Horizontal", 32))
sketch3.addConstraint(Sketcher.Constraint("Vertical", 33))
sketch3.addConstraint(Sketcher.Constraint("Horizontal", 34))
sketch3.addConstraint(Sketcher.Constraint("Vertical", 35))
sketch3.addConstraint(Sketcher.Constraint("Vertical", 36))
sketch3.addConstraint(Sketcher.Constraint("Horizontal", 37))
sketch3.addConstraint(Sketcher.Constraint("Vertical", 38))
sketch3.addConstraint(Sketcher.Constraint("Horizontal", 39))
sketch3.addConstraint(Sketcher.Constraint("Vertical", 40))
sketch3.addConstraint(Sketcher.Constraint("Horizontal", 41))
sketch3.addConstraint(Sketcher.Constraint("Vertical", 42))
sketch3.addConstraint(Sketcher.Constraint("Horizontal", 43))
sketch3.addConstraint(Sketcher.Constraint("Vertical", 44))
sketch3.addConstraint(Sketcher.Constraint("Horizontal", 45))
sketch3.addConstraint(Sketcher.Constraint("Vertical", 46))
sketch3.addConstraint(Sketcher.Constraint("Horizontal", 47))
sketch3.addConstraint(Sketcher.Constraint("Vertical", 48))
sketch3.addConstraint(Sketcher.Constraint("Vertical", 50))
sketch3.addConstraint(Sketcher.Constraint("Vertical", 52))
sketch3.addConstraint(Sketcher.Constraint("Vertical", 54))
sketch3.addConstraint(Sketcher.Constraint("Equal", 51, 53))
sketch3.addConstraint(Sketcher.Constraint("PointOnObject", 10, 2, -1))
sketch3.addConstraint(Sketcher.Constraint("Horizontal", 55, 3, 0, 2))
sketch3.addConstraint(Sketcher.Constraint("Horizontal", 53, 3, 4, 2))
sketch3.addConstraint(Sketcher.Constraint("Horizontal", 3, 2, 6, 2))
sketch3.addConstraint(Sketcher.Constraint("Horizontal", 1, 2, 8, 2))
sketch3.addConstraint(Sketcher.Constraint("Horizontal", 49, 3, 13, 2))
sketch3.addConstraint(Sketcher.Constraint("Horizontal", 51, 3, 17, 2))
sketch3.addConstraint(Sketcher.Constraint("Horizontal", 16, 2, 19, 2))
sketch3.addConstraint(Sketcher.Constraint("Horizontal", 14, 2, 21, 2))
sketch3.addConstraint(Sketcher.Constraint("Horizontal", 24, 2, 27, 2))
sketch3.addConstraint(Sketcher.Constraint("Horizontal", 30, 2, 33, 2))
sketch3.addConstraint(Sketcher.Constraint("Horizontal", 37, 2, 40, 2))
sketch3.addConstraint(Sketcher.Constraint("Horizontal", 43, 2, 46, 2))
sketch3.addConstraint(Sketcher.Constraint("Vertical", 51, 3, 53, 3))
sketch3.addConstraint(Sketcher.Constraint("Vertical", 0, 2, 3, 2))
sketch3.addConstraint(Sketcher.Constraint("Vertical", 6, 2, 9, 2))
sketch3.addConstraint(Sketcher.Constraint("Vertical", 10, 2, 12, 2))
sketch3.addConstraint(Sketcher.Constraint("Vertical", 8, 2, 14, 2))
sketch3.addConstraint(Sketcher.Constraint("Vertical", 13, 2, 16, 2))
sketch3.addConstraint(Sketcher.Constraint("Vertical", 11, 2, 18, 2))
sketch3.addConstraint(Sketcher.Constraint("Vertical", 2, 2, 20, 2))
sketch3.addConstraint(Sketcher.Constraint("Vertical", 19, 2, 22, 2))
sketch3.addConstraint(Sketcher.Constraint("Vertical", 27, 2, 30, 2))
sketch3.addConstraint(Sketcher.Constraint("Vertical", 25, 2, 32, 2))
sketch3.addConstraint(Sketcher.Constraint("Vertical", 35, 2, 36, 2))
sketch3.addConstraint(Sketcher.Constraint("Vertical", 33, 2, 37, 2))
sketch3.addConstraint(Sketcher.Constraint("Vertical", 31, 2, 39, 2))
sketch3.addConstraint(Sketcher.Constraint("Vertical", 29, 2, 41, 2))
sketch3.addConstraint(Sketcher.Constraint("Vertical", 40, 2, 43, 2))
sketch3.addConstraint(Sketcher.Constraint("Vertical", 38, 2, 45, 2))
sketch3.addConstraint(Sketcher.Constraint("Equal", 3, 7))
sketch3.addConstraint(Sketcher.Constraint("Equal", 18, 26))
sketch3.addConstraint(Sketcher.Constraint("Equal", 47, 0))
sketch3.addConstraint(Sketcher.Constraint("Equal", 45, 2))
sketch3.addConstraint(Sketcher.Constraint("Equal", 43, 4))
sketch3.addConstraint(Sketcher.Constraint("Equal", 10, 13))
sketch3.addConstraint(Sketcher.Constraint("Equal", 8, 15))
sketch3.addConstraint(Sketcher.Constraint("Equal", 6, 17))
sketch3.addConstraint(Sketcher.Constraint("Equal", 22, 25))
sketch3.addConstraint(Sketcher.Constraint("Equal", 21, 29))
sketch3.addConstraint(Sketcher.Constraint("Equal", 27, 31))
sketch3.addConstraint(Sketcher.Constraint("Equal", 35, 36))
sketch3.addConstraint(Sketcher.Constraint("Equal", 33, 38))
sketch3.addConstraint(Sketcher.Constraint("Equal", 40, 44))
sketch3.addConstraint(Sketcher.Constraint("Equal", 23, 48))
sketch3.addConstraint(Sketcher.Constraint("Radius", 49, Q("2.5 mm")))
sketch3.addConstraint(Sketcher.Constraint("DistanceX", 5, 2, 5, 1, Q("3 mm")))
sketch3.addConstraint(Sketcher.Constraint("DistanceX", 24, 2, 24, 1, Q("5 mm")))
sketch3.addConstraint(Sketcher.Constraint("DistanceY", -1, 1, 49, 3, Q("115 mm")))
sketch3.addConstraint(Sketcher.Constraint("DistanceX", -1, 1, 24, 2, Q("45 mm")))
sketch3.addConstraint(Sketcher.Constraint("DistanceX", -1, 1, 48, 2, Q("10 mm")))
sketch3.addConstraint(Sketcher.Constraint("DistanceX", 55, 3, 0, 2, Q("19 mm")))
sketch3.addConstraint(Sketcher.Constraint("DistanceX", 1, 1, 1, 2, Q("1.25 mm")))
sketch3.addConstraint(Sketcher.Constraint("DistanceY", -1, 1, 24, 2, Q("31.5 mm")))
sketch3.addConstraint(Sketcher.Constraint("DistanceY", -1, 1, 36, 2, Q("91.5 mm")))
sketch3.setExpression("Constraints[154]", "Params.sketch3_radius")
sketch3.setExpression("Constraints[155]", "Params.sketch3_width")
sketch3.setExpression("Constraints[156]", "Params.sketch3_width2")
sketch3.setExpression("Constraints[161]", "Params.sketch3_width3")
pocket1 = doc.addObject("PartDesign::Pocket", "Pocket")
body.addObject(pocket1)
pocket1.Profile = sketch3
pocket1.Type = "ThroughAll"

doc.recompute()
